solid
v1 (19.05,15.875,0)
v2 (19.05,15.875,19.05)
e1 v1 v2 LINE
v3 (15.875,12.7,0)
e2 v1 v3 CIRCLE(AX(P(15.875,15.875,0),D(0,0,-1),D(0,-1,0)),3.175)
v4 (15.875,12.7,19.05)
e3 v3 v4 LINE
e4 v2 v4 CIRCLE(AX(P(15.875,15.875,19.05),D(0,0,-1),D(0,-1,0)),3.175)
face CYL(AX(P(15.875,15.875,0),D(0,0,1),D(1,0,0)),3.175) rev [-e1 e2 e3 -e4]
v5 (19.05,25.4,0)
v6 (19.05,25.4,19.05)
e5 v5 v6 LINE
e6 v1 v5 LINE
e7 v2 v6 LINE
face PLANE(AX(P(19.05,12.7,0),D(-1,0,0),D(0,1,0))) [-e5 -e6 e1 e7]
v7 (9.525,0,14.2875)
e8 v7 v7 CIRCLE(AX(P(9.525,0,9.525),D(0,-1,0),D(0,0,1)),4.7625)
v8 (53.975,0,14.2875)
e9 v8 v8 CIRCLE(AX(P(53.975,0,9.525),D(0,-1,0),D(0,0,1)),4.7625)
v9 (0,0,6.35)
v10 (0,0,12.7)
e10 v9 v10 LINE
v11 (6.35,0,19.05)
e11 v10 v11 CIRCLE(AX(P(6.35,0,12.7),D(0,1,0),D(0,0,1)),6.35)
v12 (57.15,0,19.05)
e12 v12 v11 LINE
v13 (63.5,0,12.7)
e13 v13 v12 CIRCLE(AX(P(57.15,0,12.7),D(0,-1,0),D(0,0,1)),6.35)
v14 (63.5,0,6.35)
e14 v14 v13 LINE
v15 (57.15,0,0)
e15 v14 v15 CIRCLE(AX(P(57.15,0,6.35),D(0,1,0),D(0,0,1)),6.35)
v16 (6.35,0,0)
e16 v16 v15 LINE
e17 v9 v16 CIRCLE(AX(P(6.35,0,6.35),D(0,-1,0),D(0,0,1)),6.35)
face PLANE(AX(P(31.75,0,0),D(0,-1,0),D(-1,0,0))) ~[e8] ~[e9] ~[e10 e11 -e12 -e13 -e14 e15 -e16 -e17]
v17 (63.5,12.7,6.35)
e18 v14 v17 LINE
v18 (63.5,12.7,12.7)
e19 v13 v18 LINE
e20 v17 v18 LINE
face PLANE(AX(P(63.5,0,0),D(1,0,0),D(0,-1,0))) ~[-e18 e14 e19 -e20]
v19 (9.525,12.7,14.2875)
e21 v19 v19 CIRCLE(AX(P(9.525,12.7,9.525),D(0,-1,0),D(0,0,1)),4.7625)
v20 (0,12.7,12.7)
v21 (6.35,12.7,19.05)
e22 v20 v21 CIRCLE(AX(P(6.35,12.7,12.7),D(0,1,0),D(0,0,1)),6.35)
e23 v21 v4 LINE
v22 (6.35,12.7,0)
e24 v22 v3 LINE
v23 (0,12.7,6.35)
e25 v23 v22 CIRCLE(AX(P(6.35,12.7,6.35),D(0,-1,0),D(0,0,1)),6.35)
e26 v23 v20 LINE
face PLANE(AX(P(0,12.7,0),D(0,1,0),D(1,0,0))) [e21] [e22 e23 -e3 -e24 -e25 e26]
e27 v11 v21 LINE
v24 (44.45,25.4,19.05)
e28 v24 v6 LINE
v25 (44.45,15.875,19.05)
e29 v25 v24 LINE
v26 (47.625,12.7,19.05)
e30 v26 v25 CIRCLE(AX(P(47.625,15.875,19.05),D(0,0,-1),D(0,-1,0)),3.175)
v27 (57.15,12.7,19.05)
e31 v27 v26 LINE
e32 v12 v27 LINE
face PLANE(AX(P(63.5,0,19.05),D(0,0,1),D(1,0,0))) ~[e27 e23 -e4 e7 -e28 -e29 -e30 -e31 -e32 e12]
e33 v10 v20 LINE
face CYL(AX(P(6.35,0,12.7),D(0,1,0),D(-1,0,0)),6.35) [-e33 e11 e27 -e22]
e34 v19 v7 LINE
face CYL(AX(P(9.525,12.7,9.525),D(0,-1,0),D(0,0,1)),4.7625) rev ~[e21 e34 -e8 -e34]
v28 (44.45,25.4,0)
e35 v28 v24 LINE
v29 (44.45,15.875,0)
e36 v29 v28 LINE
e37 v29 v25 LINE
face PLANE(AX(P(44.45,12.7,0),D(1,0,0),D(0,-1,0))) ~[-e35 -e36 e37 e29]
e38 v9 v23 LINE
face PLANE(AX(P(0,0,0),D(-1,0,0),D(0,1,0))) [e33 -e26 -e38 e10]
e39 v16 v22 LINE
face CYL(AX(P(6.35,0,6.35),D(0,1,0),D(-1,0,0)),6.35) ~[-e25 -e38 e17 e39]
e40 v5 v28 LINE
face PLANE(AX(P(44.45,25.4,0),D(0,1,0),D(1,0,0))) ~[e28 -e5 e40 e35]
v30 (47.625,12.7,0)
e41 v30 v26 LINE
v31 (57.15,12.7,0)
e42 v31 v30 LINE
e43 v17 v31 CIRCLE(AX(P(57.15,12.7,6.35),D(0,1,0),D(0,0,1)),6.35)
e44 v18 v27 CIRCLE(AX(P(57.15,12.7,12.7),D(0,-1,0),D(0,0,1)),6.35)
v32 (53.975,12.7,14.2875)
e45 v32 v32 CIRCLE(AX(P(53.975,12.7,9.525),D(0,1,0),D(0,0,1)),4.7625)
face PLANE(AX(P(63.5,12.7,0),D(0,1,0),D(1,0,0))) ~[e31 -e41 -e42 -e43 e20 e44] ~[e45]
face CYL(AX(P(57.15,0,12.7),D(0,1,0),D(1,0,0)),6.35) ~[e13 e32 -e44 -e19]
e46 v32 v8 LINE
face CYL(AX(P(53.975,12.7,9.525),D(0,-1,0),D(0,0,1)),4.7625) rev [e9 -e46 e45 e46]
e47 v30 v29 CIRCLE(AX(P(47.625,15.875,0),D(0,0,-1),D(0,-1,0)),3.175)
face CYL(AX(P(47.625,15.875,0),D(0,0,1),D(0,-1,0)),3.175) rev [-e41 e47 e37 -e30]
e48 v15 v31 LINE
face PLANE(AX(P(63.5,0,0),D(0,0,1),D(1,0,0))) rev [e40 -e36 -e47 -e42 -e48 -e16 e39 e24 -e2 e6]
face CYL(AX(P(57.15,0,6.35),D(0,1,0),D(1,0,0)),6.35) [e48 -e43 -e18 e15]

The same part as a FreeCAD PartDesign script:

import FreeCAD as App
import Part
import Sketcher

V = App.Vector
Q = App.Units.Quantity


def edges_at(feature, points):
    """Names of the edges that pass closest to the given points."""
    edges = feature.Shape.Edges
    near = lambda p: min(range(len(edges)), key=lambda i: edges[i].distToShape(Part.Vertex(*p))[0])
    return sorted({f"Edge{near(p) + 1}" for p in points})

doc = App.newDocument("Part")
params = doc.addObject("Spreadsheet::Sheet", "Params")
for row, (alias, value) in enumerate([
    ("sketch1_width", "0.5 in"),
    ("sketch1_width2", "1.25 in"),
    ("pad1_length", "0.75 in"),
    ("sketch2_diameter", "0.375 in"),
    ("hole_diameter", "0.375 in"),
    ("fillet_radius", "0.25 in"),
    ("fillet2_radius", "0.25 in"),
    ("fillet3_radius", "0.125 in"),
    ("fillet4_radius", "0.125 in"),
], start=1):
    params.set(f"A{row}", alias)
    params.set(f"B{row}", "=" + value)
    params.setAlias(f"B{row}", alias)

body = doc.addObject("PartDesign::Body", "Body")

# Sketch on XY plane
sketch1 = body.newObject("Sketcher::SketchObject", "Sketch")
sketch1.AttachmentSupport = (doc.getObject("XY_Plane"), [""])
sketch1.MapMode = "FlatFace"
sketch1.addGeometry([
    Part.LineSegment(V(0, 13, 0), V(0, 0, 0)),  # 0
    Part.LineSegment(V(0, 0, 0), V(32, 0, 0)),  # 1
    Part.LineSegment(V(32, 0, 0), V(32, 25, 0)),  # 2
    Part.LineSegment(V(32, 25, 0), V(19, 25, 0)),  # 3
    Part.LineSegment(V(19, 25, 0), V(19, 13, 0)),  # 4
    Part.LineSegment(V(19, 13, 0), V(0, 13, 0)),  # 5
], False)
sketch1.addConstraint([
    Sketcher.Constraint("Coincident", 0, 2, 1, 1),
    Sketcher.Constraint("Coincident", 1, 2, 2, 1),
    Sketcher.Constraint("Coincident", 2, 2, 3, 1),
    Sketcher.Constraint("Coincident", 3, 2, 4, 1),
    Sketcher.Constraint("Coincident", 4, 2, 5, 1),
    Sketcher.Constraint("Coincident", 5, 2, 0, 1),
    Sketcher.Constraint("Vertical", 0),
    Sketcher.Constraint("Horizontal", 1),
    Sketcher.Constraint("Vertical", 2),
    Sketcher.Constraint("Horizontal", 3),
    Sketcher.Constraint("Vertical", 4),
    Sketcher.Constraint("Horizontal", 5),
    Sketcher.Constraint("Coincident", 0, 2, -1, 1),
    Sketcher.Constraint("Equal", 3, 0),
    Sketcher.Constraint("Equal", 0, 4),
    Sketcher.Constraint("DistanceX", 3, 2, 3, 1, Q("0.5 in")),
    Sketcher.Constraint("DistanceX", 1, 1, 1, 2, Q("1.25 in")),
])
sketch1.setExpression("Constraints[15]", "Params.sketch1_width")
sketch1.setExpression("Constraints[16]", "Params.sketch1_width2")
pad1 = body.newObject("PartDesign::Pad", "Pad")
pad1.Profile = sketch1
pad1.setExpression("Length", "Params.pad1_length")

# Sketch on XZ plane
sketch2 = body.newObject("Sketcher::SketchObject", "Sketch001")
sketch2.AttachmentSupport = (doc.getObject("XZ_Plane"), [""])
sketch2.MapMode = "FlatFace"
sketch2.AttachmentOffset = App.Placement(V(0, 0, -0.5 * 25.4), App.Rotation())
sketch2.addGeometry(Part.Circle(V(9.5, 9.5, 0), V(0, 0, 1), 4.8), False)
sketch2.addConstraint([
    Sketcher.Constraint("Diameter", 0, Q("0.375 in")),
    Sketcher.Constraint("DistanceX", -1, 1, 0, 3, Q("0.375 in")),
    Sketcher.Constraint("DistanceY", -1, 1, 0, 3, Q("0.375 in")),
])
sketch2.setExpression("Constraints[0]", "Params.sketch2_diameter")
doc.recompute()
hole = body.newObject("PartDesign::Hole", "Hole")
hole.Profile = sketch2
hole.ThreadType = "None"
hole.setExpression("Diameter", "Params.hole_diameter")
hole.DepthType = "ThroughAll"
hole.Reversed = True
doc.recompute()

fillet = body.newObject("PartDesign::Fillet", "Fillet")
fillet.Base = (hole, edges_at(hole, [(0, 6.35, 19.05)]))
fillet.setExpression("Radius", "Params.fillet_radius")
doc.recompute()

fillet2 = body.newObject("PartDesign::Fillet", "Fillet001")
fillet2.Base = (fillet, edges_at(fillet, [(0, 6.35, 0)]))
fillet2.setExpression("Radius", "Params.fillet2_radius")
doc.recompute()

datumplane = body.newObject("PartDesign::Plane", "DatumPlane")
datumplane.AttachmentSupport = (doc.getObject("YZ_Plane"), [""])
datumplane.MapMode = "FlatFace"
datumplane.AttachmentOffset = App.Placement(V(0, 0, 1.25 * 25.4), App.Rotation())
mirrored = body.newObject("PartDesign::Mirrored", "Mirrored")
mirrored.Originals = [pad1, hole, fillet, fillet2]
mirrored.MirrorPlane = (datumplane, [""])
body.Tip = mirrored
doc.recompute()

fillet3 = body.newObject("PartDesign::Fillet", "Fillet002")
fillet3.Base = (mirrored, edges_at(mirrored, [(44.45, 12.7, 9.525)]))
fillet3.setExpression("Radius", "Params.fillet3_radius")
doc.recompute()

fillet4 = body.newObject("PartDesign::Fillet", "Fillet003")
fillet4.Base = (fillet3, edges_at(fillet3, [(19.05, 12.7, 9.525)]))
fillet4.setExpression("Radius", "Params.fillet4_radius")

doc.recompute()
